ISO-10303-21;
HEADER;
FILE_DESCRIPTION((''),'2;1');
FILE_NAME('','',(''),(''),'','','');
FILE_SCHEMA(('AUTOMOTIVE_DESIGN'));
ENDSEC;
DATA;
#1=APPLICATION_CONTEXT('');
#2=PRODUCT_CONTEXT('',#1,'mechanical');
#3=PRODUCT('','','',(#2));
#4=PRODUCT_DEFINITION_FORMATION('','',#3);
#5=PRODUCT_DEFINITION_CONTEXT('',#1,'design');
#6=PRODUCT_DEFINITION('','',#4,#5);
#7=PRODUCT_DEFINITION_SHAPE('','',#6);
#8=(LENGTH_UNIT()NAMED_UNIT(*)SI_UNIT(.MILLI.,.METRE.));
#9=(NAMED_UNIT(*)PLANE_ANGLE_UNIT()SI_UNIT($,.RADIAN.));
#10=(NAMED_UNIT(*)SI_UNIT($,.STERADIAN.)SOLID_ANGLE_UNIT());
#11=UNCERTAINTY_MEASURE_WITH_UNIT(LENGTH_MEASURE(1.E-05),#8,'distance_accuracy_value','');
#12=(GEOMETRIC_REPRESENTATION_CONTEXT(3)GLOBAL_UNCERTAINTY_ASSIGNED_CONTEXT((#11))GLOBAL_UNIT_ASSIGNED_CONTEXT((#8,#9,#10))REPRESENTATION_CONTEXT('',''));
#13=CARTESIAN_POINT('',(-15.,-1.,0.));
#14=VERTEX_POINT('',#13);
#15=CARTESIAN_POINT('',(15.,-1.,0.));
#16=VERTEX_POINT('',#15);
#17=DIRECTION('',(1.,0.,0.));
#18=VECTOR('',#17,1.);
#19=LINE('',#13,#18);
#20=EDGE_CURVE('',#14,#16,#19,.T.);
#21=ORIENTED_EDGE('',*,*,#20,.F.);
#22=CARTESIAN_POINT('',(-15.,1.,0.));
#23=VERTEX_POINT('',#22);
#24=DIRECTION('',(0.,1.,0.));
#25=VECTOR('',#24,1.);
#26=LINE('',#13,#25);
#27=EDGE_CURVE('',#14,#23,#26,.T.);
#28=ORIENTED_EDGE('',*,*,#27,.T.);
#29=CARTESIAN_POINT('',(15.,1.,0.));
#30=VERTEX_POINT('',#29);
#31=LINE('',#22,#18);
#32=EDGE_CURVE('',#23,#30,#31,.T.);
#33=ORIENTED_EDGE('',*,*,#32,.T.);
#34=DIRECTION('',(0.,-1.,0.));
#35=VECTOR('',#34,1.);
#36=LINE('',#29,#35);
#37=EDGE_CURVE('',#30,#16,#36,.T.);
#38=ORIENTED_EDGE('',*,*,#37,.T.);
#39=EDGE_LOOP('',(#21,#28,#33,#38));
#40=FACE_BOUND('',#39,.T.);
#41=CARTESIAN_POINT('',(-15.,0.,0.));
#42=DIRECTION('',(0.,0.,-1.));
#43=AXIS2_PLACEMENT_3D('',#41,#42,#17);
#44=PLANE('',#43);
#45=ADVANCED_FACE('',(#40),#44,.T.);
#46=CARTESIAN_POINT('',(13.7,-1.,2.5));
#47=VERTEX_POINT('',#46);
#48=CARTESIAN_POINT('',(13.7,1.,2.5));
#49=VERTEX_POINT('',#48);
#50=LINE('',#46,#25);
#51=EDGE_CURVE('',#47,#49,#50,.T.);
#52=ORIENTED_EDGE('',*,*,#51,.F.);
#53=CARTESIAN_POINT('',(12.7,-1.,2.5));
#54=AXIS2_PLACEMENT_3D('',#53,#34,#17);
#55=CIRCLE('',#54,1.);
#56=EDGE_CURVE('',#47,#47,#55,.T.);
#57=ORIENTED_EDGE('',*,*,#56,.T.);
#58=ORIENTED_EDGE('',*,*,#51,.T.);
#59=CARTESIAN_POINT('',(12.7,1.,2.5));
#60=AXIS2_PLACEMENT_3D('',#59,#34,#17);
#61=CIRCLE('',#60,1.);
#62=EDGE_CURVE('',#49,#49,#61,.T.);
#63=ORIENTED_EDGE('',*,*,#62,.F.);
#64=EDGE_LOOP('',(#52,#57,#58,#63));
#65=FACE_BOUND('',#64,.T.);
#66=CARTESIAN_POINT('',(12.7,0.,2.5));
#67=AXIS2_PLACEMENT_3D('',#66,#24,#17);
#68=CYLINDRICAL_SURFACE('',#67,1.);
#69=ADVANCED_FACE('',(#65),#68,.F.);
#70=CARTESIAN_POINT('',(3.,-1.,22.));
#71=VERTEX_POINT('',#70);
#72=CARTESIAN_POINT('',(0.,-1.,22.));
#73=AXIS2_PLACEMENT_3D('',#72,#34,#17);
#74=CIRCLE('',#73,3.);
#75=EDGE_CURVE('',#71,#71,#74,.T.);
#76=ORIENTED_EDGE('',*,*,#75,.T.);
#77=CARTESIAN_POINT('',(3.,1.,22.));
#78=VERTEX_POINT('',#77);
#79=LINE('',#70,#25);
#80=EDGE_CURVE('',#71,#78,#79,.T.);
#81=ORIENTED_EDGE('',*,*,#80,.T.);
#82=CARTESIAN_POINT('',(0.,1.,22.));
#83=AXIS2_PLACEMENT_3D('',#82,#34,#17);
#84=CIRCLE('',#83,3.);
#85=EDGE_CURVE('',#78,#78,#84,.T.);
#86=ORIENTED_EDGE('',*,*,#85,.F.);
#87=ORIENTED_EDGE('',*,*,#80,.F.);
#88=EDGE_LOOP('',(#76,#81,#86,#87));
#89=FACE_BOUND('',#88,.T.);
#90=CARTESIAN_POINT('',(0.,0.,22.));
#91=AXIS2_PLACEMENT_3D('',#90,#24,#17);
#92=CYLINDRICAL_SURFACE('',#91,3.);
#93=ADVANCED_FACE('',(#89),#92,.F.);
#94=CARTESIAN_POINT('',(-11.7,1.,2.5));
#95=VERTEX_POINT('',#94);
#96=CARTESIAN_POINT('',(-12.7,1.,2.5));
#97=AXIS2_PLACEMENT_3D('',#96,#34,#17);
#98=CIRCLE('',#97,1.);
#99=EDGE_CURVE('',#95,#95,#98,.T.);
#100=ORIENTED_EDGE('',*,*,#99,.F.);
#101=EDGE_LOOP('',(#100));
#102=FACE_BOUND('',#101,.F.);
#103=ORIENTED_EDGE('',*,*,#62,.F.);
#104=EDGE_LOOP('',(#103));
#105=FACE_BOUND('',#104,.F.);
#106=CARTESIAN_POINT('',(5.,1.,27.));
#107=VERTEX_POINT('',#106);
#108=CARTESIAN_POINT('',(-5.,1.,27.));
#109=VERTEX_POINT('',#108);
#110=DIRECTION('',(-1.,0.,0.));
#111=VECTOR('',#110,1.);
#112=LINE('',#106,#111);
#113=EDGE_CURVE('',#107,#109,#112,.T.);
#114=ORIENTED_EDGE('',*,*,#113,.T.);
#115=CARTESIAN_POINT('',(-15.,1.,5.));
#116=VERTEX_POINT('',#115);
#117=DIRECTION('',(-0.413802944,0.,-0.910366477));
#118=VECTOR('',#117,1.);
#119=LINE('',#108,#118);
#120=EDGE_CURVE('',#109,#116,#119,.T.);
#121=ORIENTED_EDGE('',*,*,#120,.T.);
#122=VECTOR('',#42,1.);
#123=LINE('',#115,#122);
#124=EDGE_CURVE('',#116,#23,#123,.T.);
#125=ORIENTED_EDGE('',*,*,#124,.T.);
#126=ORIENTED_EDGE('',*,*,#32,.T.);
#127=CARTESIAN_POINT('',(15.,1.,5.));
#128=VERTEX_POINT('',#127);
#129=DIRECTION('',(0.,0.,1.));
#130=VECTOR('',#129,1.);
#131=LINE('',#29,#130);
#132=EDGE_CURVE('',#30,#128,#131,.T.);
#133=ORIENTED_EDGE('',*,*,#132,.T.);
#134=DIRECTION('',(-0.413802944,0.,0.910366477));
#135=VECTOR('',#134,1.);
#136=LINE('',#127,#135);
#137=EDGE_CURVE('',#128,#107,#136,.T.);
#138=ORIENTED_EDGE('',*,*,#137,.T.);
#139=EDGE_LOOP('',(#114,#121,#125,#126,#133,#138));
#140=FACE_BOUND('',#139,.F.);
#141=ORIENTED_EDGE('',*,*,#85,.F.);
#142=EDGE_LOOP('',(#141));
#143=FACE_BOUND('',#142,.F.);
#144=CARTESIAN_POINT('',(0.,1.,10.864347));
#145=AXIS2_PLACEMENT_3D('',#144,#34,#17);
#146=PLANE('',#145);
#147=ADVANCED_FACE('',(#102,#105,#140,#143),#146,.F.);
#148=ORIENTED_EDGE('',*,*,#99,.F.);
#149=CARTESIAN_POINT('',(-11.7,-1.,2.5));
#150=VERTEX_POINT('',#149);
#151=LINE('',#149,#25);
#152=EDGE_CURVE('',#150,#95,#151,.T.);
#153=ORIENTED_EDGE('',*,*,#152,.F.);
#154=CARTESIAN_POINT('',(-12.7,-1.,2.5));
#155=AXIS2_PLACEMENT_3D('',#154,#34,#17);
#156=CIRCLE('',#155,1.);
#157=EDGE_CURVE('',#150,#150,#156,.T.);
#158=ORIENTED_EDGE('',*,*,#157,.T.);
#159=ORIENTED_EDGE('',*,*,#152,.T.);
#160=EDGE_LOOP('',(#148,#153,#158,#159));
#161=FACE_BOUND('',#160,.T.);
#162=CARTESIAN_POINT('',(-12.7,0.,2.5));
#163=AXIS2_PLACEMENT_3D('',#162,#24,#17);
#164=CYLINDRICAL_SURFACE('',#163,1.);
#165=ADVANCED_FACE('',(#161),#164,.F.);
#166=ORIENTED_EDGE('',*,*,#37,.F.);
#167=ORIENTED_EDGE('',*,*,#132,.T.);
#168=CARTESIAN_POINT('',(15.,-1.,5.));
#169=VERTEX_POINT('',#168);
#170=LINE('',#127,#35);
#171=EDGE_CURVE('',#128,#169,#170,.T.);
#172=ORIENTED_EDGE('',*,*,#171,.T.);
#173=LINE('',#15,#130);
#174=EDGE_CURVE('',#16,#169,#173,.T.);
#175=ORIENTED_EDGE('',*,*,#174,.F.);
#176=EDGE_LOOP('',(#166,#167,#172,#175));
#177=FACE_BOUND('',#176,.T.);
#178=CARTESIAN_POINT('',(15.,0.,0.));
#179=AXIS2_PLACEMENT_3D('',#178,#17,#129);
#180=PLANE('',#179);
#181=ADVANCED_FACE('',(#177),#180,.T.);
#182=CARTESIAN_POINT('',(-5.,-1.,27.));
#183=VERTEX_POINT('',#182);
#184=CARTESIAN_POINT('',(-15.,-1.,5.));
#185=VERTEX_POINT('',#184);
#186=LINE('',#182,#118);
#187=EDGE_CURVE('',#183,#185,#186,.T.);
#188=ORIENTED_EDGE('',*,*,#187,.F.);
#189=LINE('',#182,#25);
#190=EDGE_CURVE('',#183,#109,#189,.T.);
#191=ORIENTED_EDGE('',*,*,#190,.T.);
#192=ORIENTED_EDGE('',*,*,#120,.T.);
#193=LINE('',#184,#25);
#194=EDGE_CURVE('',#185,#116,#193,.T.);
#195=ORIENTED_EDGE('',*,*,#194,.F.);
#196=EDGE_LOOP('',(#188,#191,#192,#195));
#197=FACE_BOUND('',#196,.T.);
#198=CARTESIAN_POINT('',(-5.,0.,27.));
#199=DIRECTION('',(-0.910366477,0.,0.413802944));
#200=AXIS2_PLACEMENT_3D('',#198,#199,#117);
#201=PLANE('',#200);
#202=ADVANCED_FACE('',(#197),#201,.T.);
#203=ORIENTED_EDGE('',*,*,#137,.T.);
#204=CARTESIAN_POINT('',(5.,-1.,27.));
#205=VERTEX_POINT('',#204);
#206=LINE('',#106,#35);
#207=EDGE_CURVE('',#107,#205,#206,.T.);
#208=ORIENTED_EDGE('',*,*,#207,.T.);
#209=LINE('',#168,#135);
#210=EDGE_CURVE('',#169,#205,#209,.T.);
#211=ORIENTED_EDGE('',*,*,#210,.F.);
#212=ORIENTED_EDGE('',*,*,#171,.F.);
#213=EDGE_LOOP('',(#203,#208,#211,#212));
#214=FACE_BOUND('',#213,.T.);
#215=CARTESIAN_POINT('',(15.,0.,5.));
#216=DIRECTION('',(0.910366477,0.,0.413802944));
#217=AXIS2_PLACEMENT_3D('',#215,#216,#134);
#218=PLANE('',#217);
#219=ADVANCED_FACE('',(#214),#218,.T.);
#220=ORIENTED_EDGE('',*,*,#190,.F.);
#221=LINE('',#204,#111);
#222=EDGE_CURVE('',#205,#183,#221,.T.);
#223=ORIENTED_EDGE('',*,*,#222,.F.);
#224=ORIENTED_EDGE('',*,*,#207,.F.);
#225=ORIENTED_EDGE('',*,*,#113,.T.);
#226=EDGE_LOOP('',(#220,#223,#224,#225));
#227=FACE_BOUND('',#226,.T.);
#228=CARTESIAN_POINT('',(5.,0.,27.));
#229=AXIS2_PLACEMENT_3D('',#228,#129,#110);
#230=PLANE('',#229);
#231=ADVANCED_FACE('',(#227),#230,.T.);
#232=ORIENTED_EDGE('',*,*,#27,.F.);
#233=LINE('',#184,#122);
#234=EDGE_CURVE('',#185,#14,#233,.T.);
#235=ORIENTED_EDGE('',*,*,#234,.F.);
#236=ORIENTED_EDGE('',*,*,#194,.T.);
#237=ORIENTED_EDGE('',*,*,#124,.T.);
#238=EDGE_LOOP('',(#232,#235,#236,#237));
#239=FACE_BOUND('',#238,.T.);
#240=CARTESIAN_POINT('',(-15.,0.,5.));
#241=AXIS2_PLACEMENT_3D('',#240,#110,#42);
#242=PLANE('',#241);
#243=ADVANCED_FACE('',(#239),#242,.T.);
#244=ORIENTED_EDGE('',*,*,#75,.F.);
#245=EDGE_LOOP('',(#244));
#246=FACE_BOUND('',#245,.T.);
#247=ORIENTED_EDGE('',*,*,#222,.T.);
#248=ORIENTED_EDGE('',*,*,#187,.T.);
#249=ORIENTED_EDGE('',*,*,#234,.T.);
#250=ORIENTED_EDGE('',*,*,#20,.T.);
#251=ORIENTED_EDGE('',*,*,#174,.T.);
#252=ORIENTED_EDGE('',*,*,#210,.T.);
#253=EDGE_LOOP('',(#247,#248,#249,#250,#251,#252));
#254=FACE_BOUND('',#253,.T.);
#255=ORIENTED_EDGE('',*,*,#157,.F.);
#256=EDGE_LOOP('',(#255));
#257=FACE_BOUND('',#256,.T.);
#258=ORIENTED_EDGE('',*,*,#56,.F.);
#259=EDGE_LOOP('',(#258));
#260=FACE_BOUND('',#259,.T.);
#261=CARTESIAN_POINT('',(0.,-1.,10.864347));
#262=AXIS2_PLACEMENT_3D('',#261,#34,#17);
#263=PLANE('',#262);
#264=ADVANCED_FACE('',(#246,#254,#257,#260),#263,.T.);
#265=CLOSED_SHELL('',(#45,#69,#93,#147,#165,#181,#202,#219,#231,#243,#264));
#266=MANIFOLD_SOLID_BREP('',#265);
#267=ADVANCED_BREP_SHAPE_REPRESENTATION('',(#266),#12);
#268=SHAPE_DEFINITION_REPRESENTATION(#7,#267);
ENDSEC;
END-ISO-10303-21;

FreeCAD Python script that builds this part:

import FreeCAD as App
import Part
import Sketcher
from FreeCAD import Vector


def add_polygon(sketch, points):
    """Adds a closed chain of lines whose ends are joined by coincident constraints."""
    first, n = sketch.GeometryCount, len(points)
    for a, b in zip(points, points[1:] + points[:1]):
        sketch.addGeometry(Part.LineSegment(App.Vector(*a, 0), App.Vector(*b, 0)), False)
    for i in range(n):
        sketch.addConstraint(Sketcher.Constraint("Coincident", first + i, 2, first + (i + 1) % n, 1))

doc = App.newDocument("Part")
params = doc.addObject("Spreadsheet::Sheet", "Params")
for row, (alias, value) in enumerate([
    ("sketch1_diameter", "2 mm"),
    ("sketch1_diameter2", "6 mm"),
    ("sketch1_width", "30 mm"),
    ("sketch1_width2", "10 mm"),
    ("sketch1_height", "5 mm"),
    ("pad1_length", "2 mm"),
], start=1):
    params.set(f"A{row}", alias)
    params.set(f"B{row}", "=" + value)
    params.setAlias(f"B{row}", alias)

body = doc.addObject("PartDesign::Body", "Body")

# Sketch on XZ plane
sketch1 = doc.addObject("Sketcher::SketchObject", "Sketch")
body.addObject(sketch1)
sketch1.AttachmentSupport = (doc.XZ_Plane, [""])
sketch1.MapMode = "FlatFace"
add_polygon(sketch1, [(-15, 0), (15, 0), (15, 5), (5, 27), (-5, 27), (-15, 5)])  # lines 0-5
sketch1.addGeometry(Part.Circle(Vector(-12.7, 2.5, 0), Vector(0, 0, 1), 1), False)  # 6
sketch1.addGeometry(Part.Circle(Vector(12.7, 2.5, 0), Vector(0, 0, 1), 1), False)  # 7
sketch1.addGeometry(Part.Circle(Vector(0, 22, 0), Vector(0, 0, 1), 3), False)  # 8
sketch1.addConstraint([
    Sketcher.Constraint("Horizontal", 0),
    Sketcher.Constraint("Vertical", 1),
    Sketcher.Constraint("Horizontal", 3),
    Sketcher.Constraint("Vertical", 5),
    Sketcher.Constraint("Equal", 6, 7),
    Sketcher.Constraint("Symmetric", 0, 2, 5, 2, -1, 1),
    Sketcher.Constraint("Symmetric", 6, 3, 7, 3, -2),
    Sketcher.Constraint("PointOnObject", 8, 3, -2),
    Sketcher.Constraint("Horizontal", 1, 2, 4, 2),
    Sketcher.Constraint("Equal", 2, 4),
    Sketcher.Constraint("Diameter", 6, 2.0),
    Sketcher.Constraint("Diameter", 8, 6.0),
    Sketcher.Constraint("DistanceX", 0, 1, 0, 2, 30.0),
    Sketcher.Constraint("DistanceX", 3, 2, 3, 1, 10.0),
    Sketcher.Constraint("DistanceY", 1, 1, 1, 2, 5.0),
    Sketcher.Constraint("DistanceY", -1, 1, 8, 3, 22.0),
    Sketcher.Constraint("DistanceY", -1, 1, 2, 2, 27.0),
    Sketcher.Constraint("DistanceX", 6, 3, -1, 1, 12.7),
    Sketcher.Constraint("DistanceY", -1, 1, 6, 3, 2.5),
])
sketch1.setExpression("Constraints[16]", "Params.sketch1_diameter")
sketch1.setExpression("Constraints[17]", "Params.sketch1_diameter2")
sketch1.setExpression("Constraints[18]", "Params.sketch1_width")
sketch1.setExpression("Constraints[19]", "Params.sketch1_width2")
sketch1.setExpression("Constraints[20]", "Params.sketch1_height")
pad1 = doc.addObject("PartDesign::Pad", "Pad")
body.addObject(pad1)
pad1.Profile = sketch1
pad1.setExpression("Length", "Params.pad1_length")
pad1.Midplane = True

doc.recompute()
